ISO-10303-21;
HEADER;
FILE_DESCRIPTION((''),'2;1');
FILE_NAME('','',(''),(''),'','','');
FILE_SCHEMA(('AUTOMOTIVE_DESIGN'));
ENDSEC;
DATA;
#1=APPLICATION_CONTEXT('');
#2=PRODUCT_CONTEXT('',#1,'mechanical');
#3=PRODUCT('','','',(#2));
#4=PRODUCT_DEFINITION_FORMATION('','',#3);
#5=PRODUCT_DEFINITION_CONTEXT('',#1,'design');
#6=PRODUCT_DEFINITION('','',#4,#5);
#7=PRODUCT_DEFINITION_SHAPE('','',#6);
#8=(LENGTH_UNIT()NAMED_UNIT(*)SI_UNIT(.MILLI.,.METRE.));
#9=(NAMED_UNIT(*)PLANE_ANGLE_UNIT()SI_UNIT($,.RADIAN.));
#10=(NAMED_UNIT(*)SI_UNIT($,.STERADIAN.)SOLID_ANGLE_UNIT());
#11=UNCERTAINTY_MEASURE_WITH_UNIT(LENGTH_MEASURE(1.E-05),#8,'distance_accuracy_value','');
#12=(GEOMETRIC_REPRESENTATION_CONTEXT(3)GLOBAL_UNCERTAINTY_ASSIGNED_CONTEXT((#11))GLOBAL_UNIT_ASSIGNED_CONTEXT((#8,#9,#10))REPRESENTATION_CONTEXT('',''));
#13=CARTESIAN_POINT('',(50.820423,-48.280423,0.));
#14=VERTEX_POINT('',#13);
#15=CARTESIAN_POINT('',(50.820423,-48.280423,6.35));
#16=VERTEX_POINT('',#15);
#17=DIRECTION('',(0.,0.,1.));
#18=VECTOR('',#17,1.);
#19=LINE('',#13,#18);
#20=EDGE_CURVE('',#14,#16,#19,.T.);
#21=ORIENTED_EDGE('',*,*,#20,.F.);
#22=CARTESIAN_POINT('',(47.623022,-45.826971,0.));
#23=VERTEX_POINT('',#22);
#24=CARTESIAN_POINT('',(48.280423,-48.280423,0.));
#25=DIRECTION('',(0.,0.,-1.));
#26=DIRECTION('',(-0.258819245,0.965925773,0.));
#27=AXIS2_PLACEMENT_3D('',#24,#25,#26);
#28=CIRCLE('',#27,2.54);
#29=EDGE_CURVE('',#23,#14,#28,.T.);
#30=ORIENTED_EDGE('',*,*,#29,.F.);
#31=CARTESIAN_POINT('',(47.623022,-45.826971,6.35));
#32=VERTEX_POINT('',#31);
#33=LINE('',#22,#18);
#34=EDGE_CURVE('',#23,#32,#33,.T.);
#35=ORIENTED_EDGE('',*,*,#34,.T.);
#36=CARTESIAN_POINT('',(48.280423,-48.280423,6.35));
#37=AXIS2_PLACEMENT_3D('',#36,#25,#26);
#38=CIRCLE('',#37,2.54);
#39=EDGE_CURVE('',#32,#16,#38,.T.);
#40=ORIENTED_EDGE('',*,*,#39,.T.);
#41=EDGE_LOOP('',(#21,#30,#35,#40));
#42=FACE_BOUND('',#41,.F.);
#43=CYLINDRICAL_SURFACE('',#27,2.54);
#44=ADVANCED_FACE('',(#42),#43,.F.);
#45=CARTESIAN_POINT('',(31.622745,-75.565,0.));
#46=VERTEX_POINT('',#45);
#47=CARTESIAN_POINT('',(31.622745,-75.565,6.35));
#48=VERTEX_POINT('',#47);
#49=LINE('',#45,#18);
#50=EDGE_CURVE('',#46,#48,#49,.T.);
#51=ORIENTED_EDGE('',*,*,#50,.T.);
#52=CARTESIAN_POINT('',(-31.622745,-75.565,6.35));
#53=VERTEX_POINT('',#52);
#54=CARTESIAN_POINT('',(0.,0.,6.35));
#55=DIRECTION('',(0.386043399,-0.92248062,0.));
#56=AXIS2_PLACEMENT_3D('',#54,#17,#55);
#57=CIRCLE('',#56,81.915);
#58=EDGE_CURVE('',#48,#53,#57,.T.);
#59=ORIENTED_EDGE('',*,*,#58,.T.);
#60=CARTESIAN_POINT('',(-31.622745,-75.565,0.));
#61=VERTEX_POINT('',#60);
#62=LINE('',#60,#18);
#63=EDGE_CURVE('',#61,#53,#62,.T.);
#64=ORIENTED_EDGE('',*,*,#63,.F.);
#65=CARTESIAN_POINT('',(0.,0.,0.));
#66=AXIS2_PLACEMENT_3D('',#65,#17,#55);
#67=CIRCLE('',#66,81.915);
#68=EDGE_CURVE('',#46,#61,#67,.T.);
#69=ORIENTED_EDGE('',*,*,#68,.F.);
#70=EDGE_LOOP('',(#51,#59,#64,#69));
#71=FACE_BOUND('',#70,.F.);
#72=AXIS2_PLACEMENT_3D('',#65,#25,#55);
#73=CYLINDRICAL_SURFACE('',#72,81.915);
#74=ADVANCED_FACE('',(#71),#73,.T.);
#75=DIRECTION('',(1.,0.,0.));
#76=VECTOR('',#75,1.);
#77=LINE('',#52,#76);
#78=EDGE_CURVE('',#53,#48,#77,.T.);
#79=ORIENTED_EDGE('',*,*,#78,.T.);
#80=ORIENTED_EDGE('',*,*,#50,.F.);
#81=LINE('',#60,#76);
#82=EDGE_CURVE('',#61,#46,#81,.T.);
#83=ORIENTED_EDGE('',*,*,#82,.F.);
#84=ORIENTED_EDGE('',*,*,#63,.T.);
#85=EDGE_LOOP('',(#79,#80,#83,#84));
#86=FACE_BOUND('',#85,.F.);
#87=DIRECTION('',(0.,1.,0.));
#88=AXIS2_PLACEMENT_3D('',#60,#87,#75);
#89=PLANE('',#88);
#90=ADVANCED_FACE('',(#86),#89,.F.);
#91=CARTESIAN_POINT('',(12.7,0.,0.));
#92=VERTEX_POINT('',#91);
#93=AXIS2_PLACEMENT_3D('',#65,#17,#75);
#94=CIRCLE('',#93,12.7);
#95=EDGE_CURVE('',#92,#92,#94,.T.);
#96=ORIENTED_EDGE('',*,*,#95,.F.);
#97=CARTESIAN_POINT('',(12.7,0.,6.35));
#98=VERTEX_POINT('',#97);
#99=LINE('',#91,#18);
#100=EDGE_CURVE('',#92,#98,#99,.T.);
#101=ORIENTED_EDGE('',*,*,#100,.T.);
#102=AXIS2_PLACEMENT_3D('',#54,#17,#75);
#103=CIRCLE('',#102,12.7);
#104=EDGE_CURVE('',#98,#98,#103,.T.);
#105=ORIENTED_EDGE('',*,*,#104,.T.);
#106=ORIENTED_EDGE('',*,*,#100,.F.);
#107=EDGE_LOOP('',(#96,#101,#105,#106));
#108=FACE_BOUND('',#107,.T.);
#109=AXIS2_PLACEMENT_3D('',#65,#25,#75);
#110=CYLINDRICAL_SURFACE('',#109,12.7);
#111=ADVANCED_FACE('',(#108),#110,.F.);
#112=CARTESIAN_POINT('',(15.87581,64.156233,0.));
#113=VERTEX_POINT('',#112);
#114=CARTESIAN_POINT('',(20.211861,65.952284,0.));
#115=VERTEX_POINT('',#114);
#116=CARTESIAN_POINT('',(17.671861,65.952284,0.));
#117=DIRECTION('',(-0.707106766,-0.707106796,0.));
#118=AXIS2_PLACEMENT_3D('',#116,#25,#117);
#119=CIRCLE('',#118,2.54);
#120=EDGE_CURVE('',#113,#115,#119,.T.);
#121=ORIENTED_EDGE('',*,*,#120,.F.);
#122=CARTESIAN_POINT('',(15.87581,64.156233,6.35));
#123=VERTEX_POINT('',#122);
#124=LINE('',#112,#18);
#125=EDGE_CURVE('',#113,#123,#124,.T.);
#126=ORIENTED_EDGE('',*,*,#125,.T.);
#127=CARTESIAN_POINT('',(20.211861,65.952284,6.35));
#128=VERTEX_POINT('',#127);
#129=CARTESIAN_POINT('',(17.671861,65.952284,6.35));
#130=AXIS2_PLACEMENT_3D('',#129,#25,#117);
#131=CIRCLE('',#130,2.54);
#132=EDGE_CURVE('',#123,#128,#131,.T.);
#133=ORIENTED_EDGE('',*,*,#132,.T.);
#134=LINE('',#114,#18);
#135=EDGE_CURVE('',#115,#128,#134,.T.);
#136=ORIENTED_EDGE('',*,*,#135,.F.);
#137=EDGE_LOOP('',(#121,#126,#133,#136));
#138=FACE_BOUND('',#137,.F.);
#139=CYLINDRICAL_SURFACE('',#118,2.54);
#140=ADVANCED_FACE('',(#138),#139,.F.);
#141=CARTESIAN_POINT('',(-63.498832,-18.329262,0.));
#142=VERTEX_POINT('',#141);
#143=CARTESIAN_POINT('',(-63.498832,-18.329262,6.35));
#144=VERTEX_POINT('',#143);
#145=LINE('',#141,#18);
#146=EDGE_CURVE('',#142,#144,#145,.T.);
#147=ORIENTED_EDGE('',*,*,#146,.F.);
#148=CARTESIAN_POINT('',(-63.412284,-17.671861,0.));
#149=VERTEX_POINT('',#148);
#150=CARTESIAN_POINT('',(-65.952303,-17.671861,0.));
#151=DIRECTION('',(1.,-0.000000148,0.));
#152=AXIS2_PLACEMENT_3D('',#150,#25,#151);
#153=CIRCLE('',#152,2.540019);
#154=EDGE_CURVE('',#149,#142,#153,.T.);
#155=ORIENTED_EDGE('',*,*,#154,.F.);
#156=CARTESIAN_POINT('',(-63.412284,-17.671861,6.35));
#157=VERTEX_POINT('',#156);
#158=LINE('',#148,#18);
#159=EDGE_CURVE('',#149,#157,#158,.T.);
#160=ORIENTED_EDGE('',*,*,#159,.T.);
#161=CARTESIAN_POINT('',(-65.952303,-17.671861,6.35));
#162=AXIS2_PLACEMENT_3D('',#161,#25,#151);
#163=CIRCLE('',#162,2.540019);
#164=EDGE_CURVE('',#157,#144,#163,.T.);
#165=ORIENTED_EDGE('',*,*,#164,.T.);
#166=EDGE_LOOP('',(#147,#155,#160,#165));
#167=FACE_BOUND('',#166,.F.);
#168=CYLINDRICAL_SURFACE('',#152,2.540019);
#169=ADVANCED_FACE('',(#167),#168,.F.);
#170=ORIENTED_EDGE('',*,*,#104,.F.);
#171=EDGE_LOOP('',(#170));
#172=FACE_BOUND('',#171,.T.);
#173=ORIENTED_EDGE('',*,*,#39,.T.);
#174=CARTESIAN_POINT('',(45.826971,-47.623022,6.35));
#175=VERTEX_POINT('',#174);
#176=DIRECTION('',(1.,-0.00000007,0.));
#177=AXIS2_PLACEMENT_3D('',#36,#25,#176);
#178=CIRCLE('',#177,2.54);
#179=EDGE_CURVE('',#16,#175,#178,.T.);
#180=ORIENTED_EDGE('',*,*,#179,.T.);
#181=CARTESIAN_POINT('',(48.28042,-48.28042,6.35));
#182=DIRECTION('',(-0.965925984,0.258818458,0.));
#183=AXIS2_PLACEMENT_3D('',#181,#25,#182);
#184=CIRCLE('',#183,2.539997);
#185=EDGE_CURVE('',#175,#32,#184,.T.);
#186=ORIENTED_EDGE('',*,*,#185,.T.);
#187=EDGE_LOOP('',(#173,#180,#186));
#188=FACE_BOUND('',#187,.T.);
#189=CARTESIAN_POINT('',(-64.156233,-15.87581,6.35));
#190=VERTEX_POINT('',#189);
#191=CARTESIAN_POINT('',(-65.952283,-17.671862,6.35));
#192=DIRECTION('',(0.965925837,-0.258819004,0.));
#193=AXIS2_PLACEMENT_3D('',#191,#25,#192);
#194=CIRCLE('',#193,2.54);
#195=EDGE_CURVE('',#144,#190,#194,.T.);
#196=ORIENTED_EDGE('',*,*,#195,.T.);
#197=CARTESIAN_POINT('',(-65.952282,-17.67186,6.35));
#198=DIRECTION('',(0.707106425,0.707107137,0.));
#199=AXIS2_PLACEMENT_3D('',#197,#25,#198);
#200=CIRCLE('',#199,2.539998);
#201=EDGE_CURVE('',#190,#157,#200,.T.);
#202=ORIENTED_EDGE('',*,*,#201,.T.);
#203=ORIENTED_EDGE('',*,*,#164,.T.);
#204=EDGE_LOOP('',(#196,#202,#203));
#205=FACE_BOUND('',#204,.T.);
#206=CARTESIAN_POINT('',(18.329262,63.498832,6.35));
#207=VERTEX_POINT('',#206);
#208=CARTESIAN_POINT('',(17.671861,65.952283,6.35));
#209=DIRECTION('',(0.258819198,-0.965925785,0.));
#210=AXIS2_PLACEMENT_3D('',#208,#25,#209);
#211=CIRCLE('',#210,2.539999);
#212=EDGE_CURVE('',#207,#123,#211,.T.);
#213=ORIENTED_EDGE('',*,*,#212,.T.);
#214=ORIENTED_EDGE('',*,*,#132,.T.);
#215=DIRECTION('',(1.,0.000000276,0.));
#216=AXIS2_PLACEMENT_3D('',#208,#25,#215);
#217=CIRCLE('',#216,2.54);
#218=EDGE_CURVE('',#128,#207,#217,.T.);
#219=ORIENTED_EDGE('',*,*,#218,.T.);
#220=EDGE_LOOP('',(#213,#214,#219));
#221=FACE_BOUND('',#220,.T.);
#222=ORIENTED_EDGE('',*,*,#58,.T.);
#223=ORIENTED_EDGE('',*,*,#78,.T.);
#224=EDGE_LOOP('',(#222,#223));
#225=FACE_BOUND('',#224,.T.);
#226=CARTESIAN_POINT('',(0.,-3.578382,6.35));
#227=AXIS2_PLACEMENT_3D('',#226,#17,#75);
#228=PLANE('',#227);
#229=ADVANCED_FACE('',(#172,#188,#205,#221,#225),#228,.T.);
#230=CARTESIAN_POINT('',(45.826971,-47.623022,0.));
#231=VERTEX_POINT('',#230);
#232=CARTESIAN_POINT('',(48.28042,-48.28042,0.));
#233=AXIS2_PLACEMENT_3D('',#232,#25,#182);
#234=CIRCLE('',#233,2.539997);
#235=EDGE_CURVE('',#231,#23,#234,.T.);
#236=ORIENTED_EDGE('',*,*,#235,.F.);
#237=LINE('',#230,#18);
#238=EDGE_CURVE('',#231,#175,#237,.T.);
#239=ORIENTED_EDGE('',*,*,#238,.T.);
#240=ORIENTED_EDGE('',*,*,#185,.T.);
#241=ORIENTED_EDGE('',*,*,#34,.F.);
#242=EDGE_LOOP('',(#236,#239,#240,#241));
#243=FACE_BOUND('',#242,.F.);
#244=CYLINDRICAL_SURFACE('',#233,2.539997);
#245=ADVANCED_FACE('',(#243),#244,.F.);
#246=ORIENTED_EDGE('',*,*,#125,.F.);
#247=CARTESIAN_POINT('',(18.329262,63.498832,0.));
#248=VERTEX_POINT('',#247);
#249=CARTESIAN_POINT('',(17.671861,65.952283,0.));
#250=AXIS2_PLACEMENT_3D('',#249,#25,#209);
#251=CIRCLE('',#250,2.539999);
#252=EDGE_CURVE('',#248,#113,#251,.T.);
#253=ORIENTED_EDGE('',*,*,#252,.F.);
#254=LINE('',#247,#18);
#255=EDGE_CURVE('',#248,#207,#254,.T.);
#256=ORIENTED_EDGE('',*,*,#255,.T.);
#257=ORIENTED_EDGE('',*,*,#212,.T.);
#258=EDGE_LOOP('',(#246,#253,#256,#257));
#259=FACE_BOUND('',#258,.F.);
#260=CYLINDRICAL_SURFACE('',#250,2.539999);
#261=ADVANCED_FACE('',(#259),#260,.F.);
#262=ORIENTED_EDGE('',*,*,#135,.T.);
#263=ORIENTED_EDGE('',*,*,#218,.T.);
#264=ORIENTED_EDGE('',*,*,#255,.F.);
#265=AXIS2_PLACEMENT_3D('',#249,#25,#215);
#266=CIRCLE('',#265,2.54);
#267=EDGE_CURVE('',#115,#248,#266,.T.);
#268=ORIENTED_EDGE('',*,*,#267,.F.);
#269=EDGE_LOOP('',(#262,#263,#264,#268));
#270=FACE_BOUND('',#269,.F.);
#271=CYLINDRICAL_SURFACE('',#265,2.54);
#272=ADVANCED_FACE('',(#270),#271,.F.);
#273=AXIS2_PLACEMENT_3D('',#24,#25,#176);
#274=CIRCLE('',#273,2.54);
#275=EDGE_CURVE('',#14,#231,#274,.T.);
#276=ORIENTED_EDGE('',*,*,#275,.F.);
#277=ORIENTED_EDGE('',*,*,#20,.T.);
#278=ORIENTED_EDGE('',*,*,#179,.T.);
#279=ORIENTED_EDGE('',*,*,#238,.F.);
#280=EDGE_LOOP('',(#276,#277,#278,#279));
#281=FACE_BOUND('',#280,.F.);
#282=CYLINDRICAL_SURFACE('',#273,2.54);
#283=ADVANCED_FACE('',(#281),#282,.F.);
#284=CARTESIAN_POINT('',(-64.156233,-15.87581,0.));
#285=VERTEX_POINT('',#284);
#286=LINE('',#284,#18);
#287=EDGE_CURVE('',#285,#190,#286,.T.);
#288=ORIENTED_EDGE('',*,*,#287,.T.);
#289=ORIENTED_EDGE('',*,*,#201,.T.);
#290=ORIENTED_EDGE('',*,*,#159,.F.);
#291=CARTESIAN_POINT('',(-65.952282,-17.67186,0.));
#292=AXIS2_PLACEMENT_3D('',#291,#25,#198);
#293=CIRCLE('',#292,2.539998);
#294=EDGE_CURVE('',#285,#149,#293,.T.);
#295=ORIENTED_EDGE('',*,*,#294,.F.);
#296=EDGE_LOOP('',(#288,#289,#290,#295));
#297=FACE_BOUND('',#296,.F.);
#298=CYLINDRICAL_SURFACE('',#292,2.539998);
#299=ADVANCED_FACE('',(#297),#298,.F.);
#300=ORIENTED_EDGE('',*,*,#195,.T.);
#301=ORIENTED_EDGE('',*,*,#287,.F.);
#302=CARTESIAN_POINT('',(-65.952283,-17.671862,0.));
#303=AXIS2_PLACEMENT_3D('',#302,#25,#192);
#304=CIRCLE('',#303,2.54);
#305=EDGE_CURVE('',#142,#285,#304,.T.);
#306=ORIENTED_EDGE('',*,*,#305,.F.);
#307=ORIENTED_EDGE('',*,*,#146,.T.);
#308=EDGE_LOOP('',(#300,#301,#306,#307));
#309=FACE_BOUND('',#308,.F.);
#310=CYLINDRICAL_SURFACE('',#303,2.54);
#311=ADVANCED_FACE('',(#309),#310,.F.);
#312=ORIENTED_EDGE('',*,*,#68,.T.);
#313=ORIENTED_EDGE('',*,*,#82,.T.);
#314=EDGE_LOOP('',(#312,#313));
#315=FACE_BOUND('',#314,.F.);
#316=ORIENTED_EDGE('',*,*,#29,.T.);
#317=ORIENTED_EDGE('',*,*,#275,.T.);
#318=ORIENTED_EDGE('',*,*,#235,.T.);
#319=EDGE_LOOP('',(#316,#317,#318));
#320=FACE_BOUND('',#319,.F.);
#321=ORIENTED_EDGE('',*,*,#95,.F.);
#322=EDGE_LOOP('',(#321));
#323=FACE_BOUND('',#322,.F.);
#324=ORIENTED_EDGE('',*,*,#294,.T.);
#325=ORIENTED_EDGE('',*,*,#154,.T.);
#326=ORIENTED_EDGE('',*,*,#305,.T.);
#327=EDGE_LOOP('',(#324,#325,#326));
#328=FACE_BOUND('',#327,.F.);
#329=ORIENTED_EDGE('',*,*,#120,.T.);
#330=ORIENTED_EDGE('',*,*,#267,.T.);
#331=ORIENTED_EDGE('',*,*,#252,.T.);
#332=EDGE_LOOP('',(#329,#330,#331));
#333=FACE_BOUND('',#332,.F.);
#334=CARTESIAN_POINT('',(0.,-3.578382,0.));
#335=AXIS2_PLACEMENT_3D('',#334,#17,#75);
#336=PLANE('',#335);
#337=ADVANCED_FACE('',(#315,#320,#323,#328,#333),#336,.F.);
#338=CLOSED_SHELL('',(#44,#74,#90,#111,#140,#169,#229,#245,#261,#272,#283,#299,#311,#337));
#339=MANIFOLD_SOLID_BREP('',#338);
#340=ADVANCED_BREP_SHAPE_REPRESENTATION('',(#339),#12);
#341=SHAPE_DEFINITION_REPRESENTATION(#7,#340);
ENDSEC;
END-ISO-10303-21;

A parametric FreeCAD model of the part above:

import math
import FreeCAD as App
import Part
import Sketcher
Q = App.Units.Quantity

doc = App.newDocument("Part")
params = doc.addObject("Spreadsheet::Sheet", "Params")
for row, (alias, value) in enumerate([
    ("sketch1_diameter", "1 in"),
    ("sketch1_radius", "0.1 in"),
    ("sketch1_radius2", "0.1 in"),
    ("sketch1_radius3", "0.0999999 in"),
    ("sketch1_radius4", "0.1 in"),
    ("pad1_length", "0.25 in"),
], start=1):
    params.set(f"A{row}", alias)
    params.set(f"B{row}", "=" + value)
    params.setAlias(f"B{row}", alias)

body = doc.addObject("PartDesign::Body", "Body")

sketch1 = body.newObject("Sketcher::SketchObject", "Sketch")
sketch1.AttachmentSupport = (doc.getObject("XY_Plane"), [""])
sketch1.MapMode = "FlatFace"
sketch1.addGeometry(Part.ArcOfCircle(Part.Circle(App.Vector(0, 0, 0), App.Vector(0, 0, 1), 81.915), math.radians(-67.291469), math.radians(247.291469)), False)
sketch1.addGeometry(Part.LineSegment(App.Vector(-31.622745, -75.565, 0), App.Vector(31.622745, -75.565, 0)), False)
sketch1.addGeometry(Part.ArcOfCircle(Part.Circle(App.Vector(-65.952283, -17.671862, 0), App.Vector(0, 0, 1), 2.54), math.radians(45.00002), math.radians(345.000002)), False)
sketch1.addGeometry(Part.ArcOfCircle(Part.Circle(App.Vector(-65.952282, -17.67186, 0), App.Vector(0, 0, 1), 2.539998), math.radians(-0.000012), math.radians(45.000029)), False)
sketch1.addGeometry(Part.ArcOfCircle(Part.Circle(App.Vector(-65.952303, -17.671861, 0), App.Vector(0, 0, 1), 2.540019), math.radians(-14.999909), math.radians(-0.000009)), False)
sketch1.addGeometry(Part.ArcOfCircle(Part.Circle(App.Vector(48.280423, -48.280423, 0), App.Vector(0, 0, 1), 2.54), math.radians(-0.00001), math.radians(105.000012)), False)
sketch1.addGeometry(Part.ArcOfCircle(Part.Circle(App.Vector(48.280423, -48.280423, 0), App.Vector(0, 0, 1), 2.54), math.radians(164.999991), math.radians(359.999996)), False)
sketch1.addGeometry(Part.ArcOfCircle(Part.Circle(App.Vector(48.28042, -48.28042, 0), App.Vector(0, 0, 1), 2.539997), math.radians(104.999965), math.radians(165.000035)), False)
sketch1.addGeometry(Part.Circle(App.Vector(0, 0, 0), App.Vector(0, 0, 1), 12.7), False)
sketch1.addGeometry(Part.ArcOfCircle(Part.Circle(App.Vector(17.671861, 65.952283, 0), App.Vector(0, 0, 1), 2.54), math.radians(-74.999988), math.radians(0.000016)), False)
sketch1.addGeometry(Part.ArcOfCircle(Part.Circle(App.Vector(17.671861, 65.952283, 0), App.Vector(0, 0, 1), 2.539999), math.radians(-135.000032), math.radians(-74.999991)), False)
sketch1.addGeometry(Part.ArcOfCircle(Part.Circle(App.Vector(17.671861, 65.952284, 0), App.Vector(0, 0, 1), 2.54), math.radians(-0.000004), math.radians(225.000001)), False)
sketch1.addConstraint(Sketcher.Constraint("Coincident", 0, 1, 1, 2))
sketch1.addConstraint(Sketcher.Constraint("Coincident", 1, 1, 0, 2))
sketch1.addConstraint(Sketcher.Constraint("Coincident", 2, 1, 3, 2))
sketch1.addConstraint(Sketcher.Constraint("Coincident", 3, 1, 4, 2))
sketch1.addConstraint(Sketcher.Constraint("Coincident", 4, 1, 2, 2))
sketch1.addConstraint(Sketcher.Constraint("Coincident", 5, 1, 6, 2))
sketch1.addConstraint(Sketcher.Constraint("Coincident", 6, 1, 7, 2))
sketch1.addConstraint(Sketcher.Constraint("Coincident", 7, 1, 5, 2))
sketch1.addConstraint(Sketcher.Constraint("Coincident", 9, 1, 10, 2))
sketch1.addConstraint(Sketcher.Constraint("Coincident", 10, 1, 11, 2))
sketch1.addConstraint(Sketcher.Constraint("Coincident", 11, 1, 9, 2))
sketch1.addConstraint(Sketcher.Constraint("Horizontal", 1))
sketch1.addConstraint(Sketcher.Constraint("Coincident", 0, 3, -1, 1))
sketch1.addConstraint(Sketcher.Constraint("Coincident", 8, 3, -1, 1))
sketch1.addConstraint(Sketcher.Constraint("Coincident", 3, 3, 2, 3))
sketch1.addConstraint(Sketcher.Constraint("Coincident", 6, 3, 5, 3))
sketch1.addConstraint(Sketcher.Constraint("Coincident", 10, 3, 9, 3))
sketch1.addConstraint(Sketcher.Constraint("Diameter", 8, Q("1 in")))
sketch1.addConstraint(Sketcher.Constraint("Radius", 2, Q("0.1 in")))
sketch1.addConstraint(Sketcher.Constraint("Radius", 5, Q("0.1 in")))
sketch1.addConstraint(Sketcher.Constraint("Radius", 7, Q("0.0999999 in")))
sketch1.addConstraint(Sketcher.Constraint("Radius", 9, Q("0.1 in")))
sketch1.addConstraint(Sketcher.Constraint("Radius", 11, Q("0.1 in")))
sketch1.addConstraint(Sketcher.Constraint("Radius", 0, Q("3.225 in")))
sketch1.addConstraint(Sketcher.Constraint("DistanceY", 0, 1, -1, 1, Q("2.975 in")))
sketch1.addConstraint(Sketcher.Constraint("Radius", 4, Q("2.540019 mm")))
sketch1.addConstraint(Sketcher.Constraint("DistanceX", 3, 3, 7, 3, Q("114.232702 mm")))
sketch1.addConstraint(Sketcher.Constraint("DistanceY", 4, 1, 3, 1, Q("0.657401 mm")))
sketch1.addConstraint(Sketcher.Constraint("DistanceY", 4, 1, 3, 3, Q("0.657402 mm")))
sketch1.addConstraint(Sketcher.Constraint("DistanceX", 2, 1, 4, 1, Q("0.657401 mm")))
sketch1.addConstraint(Sketcher.Constraint("DistanceY", 7, 3, 6, 1, Q("0.657398 mm")))
sketch1.addConstraint(Sketcher.Constraint("DistanceY", 5, 1, 6, 1, Q("0.657401 mm")))
sketch1.addConstraint(Sketcher.Constraint("DistanceX", 7, 1, 7, 3, Q("0.657398 mm")))
sketch1.addConstraint(Sketcher.Constraint("DistanceX", 10, 3, 9, 1, Q("0.657401 mm")))
sketch1.addConstraint(Sketcher.Constraint("DistanceY", 9, 1, 10, 1, Q("0.657401 mm")))
sketch1.addConstraint(Sketcher.Constraint("DistanceY", 2, 3, -1, 1, Q("17.671862 mm")))
sketch1.addConstraint(Sketcher.Constraint("DistanceX", 3, 3, -1, 1, Q("65.952282 mm")))
sketch1.addConstraint(Sketcher.Constraint("DistanceY", 7, 3, -1, 1, Q("48.28042 mm")))
sketch1.addConstraint(Sketcher.Constraint("DistanceX", -1, 1, 9, 3, Q("17.671861 mm")))
sketch1.addConstraint(Sketcher.Constraint("DistanceY", -1, 1, 9, 1, Q("63.498832 mm")))
sketch1.addConstraint(Sketcher.Constraint("DistanceY", 10, 1, 11, 1, Q("1.796051 mm")))
sketch1.setExpression("Constraints[17]", "Params.sketch1_diameter")
sketch1.setExpression("Constraints[18]", "Params.sketch1_radius")
sketch1.setExpression("Constraints[19]", "Params.sketch1_radius2")
sketch1.setExpression("Constraints[20]", "Params.sketch1_radius3")
sketch1.setExpression("Constraints[21]", "Params.sketch1_radius4")
pad1 = body.newObject("PartDesign::Pad", "Pad")
pad1.Profile = sketch1
pad1.setExpression("Length", "Params.pad1_length")

doc.recompute()
